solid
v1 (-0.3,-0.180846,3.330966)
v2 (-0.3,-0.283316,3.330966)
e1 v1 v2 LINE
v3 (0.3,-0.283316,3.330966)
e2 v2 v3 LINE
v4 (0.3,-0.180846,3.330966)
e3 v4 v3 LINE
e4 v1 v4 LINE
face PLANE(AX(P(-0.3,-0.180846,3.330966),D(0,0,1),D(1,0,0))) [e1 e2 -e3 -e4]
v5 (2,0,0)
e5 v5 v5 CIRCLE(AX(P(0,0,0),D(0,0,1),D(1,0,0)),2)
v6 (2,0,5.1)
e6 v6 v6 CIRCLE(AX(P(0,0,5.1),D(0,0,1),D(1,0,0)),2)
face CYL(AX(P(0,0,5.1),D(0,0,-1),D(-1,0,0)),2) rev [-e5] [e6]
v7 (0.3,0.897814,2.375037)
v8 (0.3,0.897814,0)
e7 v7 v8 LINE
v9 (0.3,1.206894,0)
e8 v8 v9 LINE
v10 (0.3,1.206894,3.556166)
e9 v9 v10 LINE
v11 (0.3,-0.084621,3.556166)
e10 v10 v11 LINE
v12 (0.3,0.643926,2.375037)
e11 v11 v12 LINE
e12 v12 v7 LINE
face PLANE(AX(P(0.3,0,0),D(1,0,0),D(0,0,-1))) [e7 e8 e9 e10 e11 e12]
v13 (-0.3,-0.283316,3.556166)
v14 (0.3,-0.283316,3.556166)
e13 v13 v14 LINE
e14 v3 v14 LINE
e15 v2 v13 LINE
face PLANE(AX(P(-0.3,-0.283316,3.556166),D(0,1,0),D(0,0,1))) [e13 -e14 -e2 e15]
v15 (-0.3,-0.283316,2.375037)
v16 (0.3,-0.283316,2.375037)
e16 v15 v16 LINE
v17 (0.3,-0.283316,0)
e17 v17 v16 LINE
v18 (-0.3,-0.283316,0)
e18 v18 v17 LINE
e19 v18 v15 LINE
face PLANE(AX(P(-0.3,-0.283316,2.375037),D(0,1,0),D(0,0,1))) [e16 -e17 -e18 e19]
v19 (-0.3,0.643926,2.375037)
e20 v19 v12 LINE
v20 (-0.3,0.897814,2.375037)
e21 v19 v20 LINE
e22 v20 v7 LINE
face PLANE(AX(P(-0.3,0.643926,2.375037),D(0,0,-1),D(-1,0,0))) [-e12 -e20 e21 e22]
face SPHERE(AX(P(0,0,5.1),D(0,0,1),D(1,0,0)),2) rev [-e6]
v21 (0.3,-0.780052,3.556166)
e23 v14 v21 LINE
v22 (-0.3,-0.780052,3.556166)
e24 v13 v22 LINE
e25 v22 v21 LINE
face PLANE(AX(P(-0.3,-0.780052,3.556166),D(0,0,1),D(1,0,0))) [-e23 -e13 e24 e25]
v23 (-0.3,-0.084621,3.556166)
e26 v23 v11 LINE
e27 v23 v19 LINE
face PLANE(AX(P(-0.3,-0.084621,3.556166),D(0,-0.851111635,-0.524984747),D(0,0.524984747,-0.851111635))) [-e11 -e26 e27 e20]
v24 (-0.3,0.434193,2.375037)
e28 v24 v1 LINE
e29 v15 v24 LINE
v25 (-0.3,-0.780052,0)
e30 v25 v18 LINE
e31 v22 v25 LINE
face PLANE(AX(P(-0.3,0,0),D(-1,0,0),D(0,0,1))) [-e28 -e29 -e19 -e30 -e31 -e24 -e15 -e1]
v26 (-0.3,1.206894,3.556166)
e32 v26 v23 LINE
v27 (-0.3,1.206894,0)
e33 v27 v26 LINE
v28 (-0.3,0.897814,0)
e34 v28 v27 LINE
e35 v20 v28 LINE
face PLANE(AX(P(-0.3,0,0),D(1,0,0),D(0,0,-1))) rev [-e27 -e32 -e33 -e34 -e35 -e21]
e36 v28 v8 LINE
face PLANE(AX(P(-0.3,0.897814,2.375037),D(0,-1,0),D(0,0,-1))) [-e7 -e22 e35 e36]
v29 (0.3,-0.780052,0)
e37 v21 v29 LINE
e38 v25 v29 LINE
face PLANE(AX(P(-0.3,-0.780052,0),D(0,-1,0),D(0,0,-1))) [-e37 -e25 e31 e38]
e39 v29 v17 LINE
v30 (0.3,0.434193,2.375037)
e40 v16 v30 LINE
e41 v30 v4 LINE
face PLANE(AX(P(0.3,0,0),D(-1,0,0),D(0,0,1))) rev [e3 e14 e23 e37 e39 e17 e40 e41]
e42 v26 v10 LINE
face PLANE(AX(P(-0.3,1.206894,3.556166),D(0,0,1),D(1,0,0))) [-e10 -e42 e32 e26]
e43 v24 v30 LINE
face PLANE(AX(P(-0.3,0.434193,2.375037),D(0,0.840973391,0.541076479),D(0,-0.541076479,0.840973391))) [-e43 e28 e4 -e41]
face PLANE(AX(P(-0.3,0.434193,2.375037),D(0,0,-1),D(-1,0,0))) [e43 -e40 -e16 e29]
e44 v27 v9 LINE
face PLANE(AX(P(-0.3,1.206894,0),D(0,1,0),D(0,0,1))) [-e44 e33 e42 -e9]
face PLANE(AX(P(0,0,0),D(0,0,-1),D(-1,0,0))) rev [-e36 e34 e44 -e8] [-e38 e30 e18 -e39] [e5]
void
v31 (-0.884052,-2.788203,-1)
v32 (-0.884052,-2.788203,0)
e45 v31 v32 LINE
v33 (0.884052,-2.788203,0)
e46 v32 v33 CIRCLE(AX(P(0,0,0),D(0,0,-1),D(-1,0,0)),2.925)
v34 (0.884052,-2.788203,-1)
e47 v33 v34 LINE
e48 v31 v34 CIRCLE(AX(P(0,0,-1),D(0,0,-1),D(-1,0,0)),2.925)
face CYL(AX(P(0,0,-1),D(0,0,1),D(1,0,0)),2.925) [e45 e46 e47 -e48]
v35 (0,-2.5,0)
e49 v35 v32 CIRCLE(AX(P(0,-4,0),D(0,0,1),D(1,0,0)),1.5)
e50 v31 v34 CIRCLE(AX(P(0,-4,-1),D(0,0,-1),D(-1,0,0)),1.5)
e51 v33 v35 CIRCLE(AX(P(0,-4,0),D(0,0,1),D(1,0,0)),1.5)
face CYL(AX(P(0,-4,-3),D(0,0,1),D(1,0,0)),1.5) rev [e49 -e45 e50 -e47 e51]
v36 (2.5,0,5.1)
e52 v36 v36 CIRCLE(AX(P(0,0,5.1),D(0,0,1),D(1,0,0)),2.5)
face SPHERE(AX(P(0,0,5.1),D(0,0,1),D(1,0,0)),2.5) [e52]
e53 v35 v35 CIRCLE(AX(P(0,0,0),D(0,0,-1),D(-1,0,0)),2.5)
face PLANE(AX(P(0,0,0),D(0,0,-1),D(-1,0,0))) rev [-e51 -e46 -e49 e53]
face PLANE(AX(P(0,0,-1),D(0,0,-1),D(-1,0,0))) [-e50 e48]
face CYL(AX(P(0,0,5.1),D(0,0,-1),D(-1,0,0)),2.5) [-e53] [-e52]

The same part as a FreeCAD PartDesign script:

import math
import FreeCAD as App
import Part
import Sketcher
from FreeCAD import Vector
Q = App.Units.Quantity

doc = App.newDocument("Part")
body = doc.addObject("PartDesign::Body", "Body")

sketch1 = body.newObject("Sketcher::SketchObject", "Sketch")
sketch1.AttachmentSupport = (doc.getObject("XY_Plane"), [""])
sketch1.MapMode = "FlatFace"
sketch1.addGeometry([
    Part.Circle(Vector(0, 0, 0), Vector(0, 0, 1), 2.5),
    Part.Circle(Vector(0, 0, 0), Vector(0, 0, 1), 2),
], False)
sketch1.addConstraint([
    Sketcher.Constraint("Coincident", 0, 3, -1, 1),
    Sketcher.Constraint("Coincident", 1, 3, -1, 1),
    Sketcher.Constraint("Diameter", 0, Q("5 mm")),
    Sketcher.Constraint("Diameter", 1, Q("4 mm")),
])
pad1 = body.newObject("PartDesign::Pad", "Pad")
pad1.Profile = sketch1
pad1.Length = 5.1

sketch2 = body.newObject("Sketcher::SketchObject", "Sketch001")
sketch2.AttachmentSupport = (doc.getObject("XY_Plane"), [""])
sketch2.MapMode = "FlatFace"
sketch2.AttachmentOffset = App.Placement(Vector(0, 0, 5.1), App.Rotation())
sketch2.addGeometry([
    Part.LineSegment(Vector(-2, 0, 0), Vector(-2.5, 0, 0)),
    Part.ArcOfCircle(Part.Circle(Vector(0, 0, 0), Vector(0, 0, 1), 2.5), math.radians(180), math.radians(360)),
    Part.LineSegment(Vector(2.5, 0, 0), Vector(2, 0, 0)),
    Part.ArcOfCircle(Part.Circle(Vector(0, 0, 0), Vector(0, 0, 1), 2), math.radians(180), math.radians(360)),
], False)
sketch2.addConstraint([
    Sketcher.Constraint("Coincident", 0, 2, 1, 1),
    Sketcher.Constraint("Coincident", 1, 2, 2, 1),
    Sketcher.Constraint("Coincident", 2, 2, 3, 2),
    Sketcher.Constraint("Coincident", 3, 1, 0, 1),
    Sketcher.Constraint("Horizontal", 0),
    Sketcher.Constraint("Horizontal", 2),
    Sketcher.Constraint("Coincident", 1, 3, -1, 1),
    Sketcher.Constraint("Coincident", 3, 3, -1, 1),
    Sketcher.Constraint("PointOnObject", 0, 2, -1),
    Sketcher.Constraint("PointOnObject", 1, 2, -1),
    Sketcher.Constraint("Radius", 3, Q("2 mm")),
    Sketcher.Constraint("Radius", 1, Q("2.5 mm")),
])
revolution = body.newObject("PartDesign::Revolution", "Revolution")
revolution.Profile = sketch2
revolution.ReferenceAxis = (sketch2, ["H_Axis"])
revolution.Angle = 360

sketch3 = body.newObject("Sketcher::SketchObject", "Sketch002")
sketch3.AttachmentSupport = (doc.getObject("XY_Plane"), [""])
sketch3.MapMode = "FlatFace"
sketch3.addGeometry(Part.Circle(Vector(0, 0, 0), Vector(0, 0, 1), 2.925), False)
sketch3.addConstraint([
    Sketcher.Constraint("Coincident", 0, 3, -1, 1),
    Sketcher.Constraint("Diameter", 0, Q("5.85 mm")),
])
pad2 = body.newObject("PartDesign::Pad", "Pad001")
pad2.Profile = sketch3
pad2.Length = 1
pad2.Reversed = True

sketch4 = body.newObject("Sketcher::SketchObject", "Sketch003")
sketch4.AttachmentSupport = (doc.getObject("XY_Plane"), [""])
sketch4.MapMode = "FlatFace"
sketch4.addGeometry(Part.Circle(Vector(0, 0, 0), Vector(0, 0, 1), 2), False)
sketch4.addConstraint([
    Sketcher.Constraint("Coincident", 0, 3, -1, 1),
    Sketcher.Constraint("Diameter", 0, Q("4 mm")),
])
pocket1 = body.newObject("PartDesign::Pocket", "Pocket")
pocket1.Profile = sketch4
pocket1.Length = 5.1
pocket1.Reversed = True

sketch5 = body.newObject("Sketcher::SketchObject", "Sketch004")
sketch5.AttachmentSupport = (doc.getObject("YZ_Plane"), [""])
sketch5.MapMode = "FlatFace"
sketch5.addGeometry([
    Part.LineSegment(Vector(1.206894, 0, 0), Vector(1.206894, 3.556166, 0)),
    Part.LineSegment(Vector(1.206894, 3.556166, 0), Vector(-0.084621, 3.556166, 0)),
    Part.LineSegment(Vector(-0.084621, 3.556166, 0), Vector(0.643926, 2.375037, 0)),
    Part.LineSegment(Vector(0.643926, 2.375037, 0), Vector(0.897814, 2.375037, 0)),
    Part.LineSegment(Vector(0.897814, 2.375037, 0), Vector(0.897814, 0, 0)),
    Part.LineSegment(Vector(0.897814, 0, 0), Vector(1.206894, 0, 0)),
    Part.LineSegment(Vector(-0.283316, 3.330966, 0), Vector(-0.283316, 3.556166, 0)),
    Part.LineSegment(Vector(-0.283316, 3.556166, 0), Vector(-0.780052, 3.556166, 0)),
    Part.LineSegment(Vector(-0.780052, 3.556166, 0), Vector(-0.780052, 0, 0)),
    Part.LineSegment(Vector(-0.780052, 0, 0), Vector(-0.283316, 0, 0)),
    Part.LineSegment(Vector(-0.283316, 0, 0), Vector(-0.283316, 2.375037, 0)),
    Part.LineSegment(Vector(-0.283316, 2.375037, 0), Vector(0.434193, 2.375037, 0)),
    Part.LineSegment(Vector(0.434193, 2.375037, 0), Vector(-0.180846, 3.330966, 0)),
    Part.LineSegment(Vector(-0.180846, 3.330966, 0), Vector(-0.283316, 3.330966, 0)),
], False)
sketch5.addConstraint([
    Sketcher.Constraint("Coincident", 0, 2, 1, 1),
    Sketcher.Constraint("Coincident", 1, 2, 2, 1),
    Sketcher.Constraint("Coincident", 2, 2, 3, 1),
    Sketcher.Constraint("Coincident", 3, 2, 4, 1),
    Sketcher.Constraint("Coincident", 4, 2, 5, 1),
    Sketcher.Constraint("Coincident", 5, 2, 0, 1),
    Sketcher.Constraint("Coincident", 6, 2, 7, 1),
    Sketcher.Constraint("Coincident", 7, 2, 8, 1),
    Sketcher.Constraint("Coincident", 8, 2, 9, 1),
    Sketcher.Constraint("Coincident", 9, 2, 10, 1),
    Sketcher.Constraint("Coincident", 10, 2, 11, 1),
    Sketcher.Constraint("Coincident", 11, 2, 12, 1),
    Sketcher.Constraint("Coincident", 12, 2, 13, 1),
    Sketcher.Constraint("Coincident", 13, 2, 6, 1),
    Sketcher.Constraint("Vertical", 0),
    Sketcher.Constraint("Horizontal", 1),
    Sketcher.Constraint("Horizontal", 3),
    Sketcher.Constraint("Vertical", 4),
    Sketcher.Constraint("Horizontal", 5),
    Sketcher.Constraint("Vertical", 6),
    Sketcher.Constraint("Horizontal", 7),
    Sketcher.Constraint("Vertical", 8),
    Sketcher.Constraint("Horizontal", 9),
    Sketcher.Constraint("Vertical", 10),
    Sketcher.Constraint("Horizontal", 11),
    Sketcher.Constraint("Horizontal", 13),
    Sketcher.Constraint("PointOnObject", 4, 2, -1),
    Sketcher.Constraint("PointOnObject", 8, 2, -1),
    Sketcher.Constraint("Horizontal", 1, 2, 6, 2),
    Sketcher.Constraint("Horizontal", 3, 2, 10, 2),
    Sketcher.Constraint("Vertical", 6, 2, 9, 2),
    Sketcher.Constraint("DistanceY", 6, 1, 6, 2, Q("0.2252 mm")),
    Sketcher.Constraint("DistanceX", 5, 1, 5, 2, Q("0.309081 mm")),
    Sketcher.Constraint("DistanceX", 11, 1, 11, 2, Q("0.717509 mm")),
    Sketcher.Constraint("DistanceX", 13, 2, 13, 1, Q("0.10247 mm")),
    Sketcher.Constraint("Distance", 2, Q("1.387749 mm")),
    Sketcher.Constraint("DistanceX", 1, 2, 1, 1, Q("1.291516 mm")),
    Sketcher.Constraint("DistanceX", 3, 1, 3, 2, Q("0.253888 mm")),
    Sketcher.Constraint("DistanceX", 7, 2, 7, 1, Q("0.496737 mm")),
    Sketcher.Constraint("DistanceY", 0, 1, 0, 2, Q("3.556166 mm")),
    Sketcher.Constraint("DistanceX", 1, 2, -1, 1, Q("0.084621 mm")),
    Sketcher.Constraint("DistanceX", 6, 2, 0, 2, Q("1.49021 mm")),
])
pad3 = body.newObject("PartDesign::Pad", "Pad002")
pad3.Profile = sketch5
pad3.Type = "TwoLengths"
pad3.Length = 0.3
pad3.Length2 = 0.3

sketch6 = body.newObject("Sketcher::SketchObject", "Sketch005")
sketch6.AttachmentSupport = (doc.getObject("XY_Plane"), [""])
sketch6.MapMode = "FlatFace"
sketch6.addGeometry(Part.Circle(Vector(0, -4, 0), Vector(0, 0, 1), 1.5), False)
sketch6.addConstraint([
    Sketcher.Constraint("PointOnObject", 0, 3, -2),
    Sketcher.Constraint("Diameter", 0, Q("3 mm")),
    Sketcher.Constraint("DistanceY", 0, 3, -1, 1, Q("4 mm")),
])
pocket2 = body.newObject("PartDesign::Pocket", "Pocket001")
pocket2.Profile = sketch6
pocket2.Length = 3

doc.recompute()
